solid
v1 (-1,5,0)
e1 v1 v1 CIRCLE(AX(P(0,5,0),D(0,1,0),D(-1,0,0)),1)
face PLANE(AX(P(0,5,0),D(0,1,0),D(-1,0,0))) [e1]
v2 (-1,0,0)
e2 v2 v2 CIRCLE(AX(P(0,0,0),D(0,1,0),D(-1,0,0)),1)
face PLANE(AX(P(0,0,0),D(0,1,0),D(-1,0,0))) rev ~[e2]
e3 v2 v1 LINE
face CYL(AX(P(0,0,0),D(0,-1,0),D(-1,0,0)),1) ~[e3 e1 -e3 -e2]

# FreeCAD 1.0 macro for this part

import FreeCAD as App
import Part
import Sketcher

V = App.Vector

doc = App.newDocument("Part")
body = doc.addObject("PartDesign::Body", "Body")

# Sketch on XZ plane
sketch1 = body.newObject("Sketcher::SketchObject", "Sketch")
sketch1.AttachmentSupport = (doc.getObject("XZ_Plane"), [""])
sketch1.MapMode = "FlatFace"
sketch1.addGeometry(Part.Circle(V(0, 0, 0), V(0, 0, 1), 1), False)
sketch1.addConstraint([
    Sketcher.Constraint("Coincident", 0, 3, -1, 1),
    Sketcher.Constraint("Diameter", 0, 2.0),
])
pad1 = body.newObject("PartDesign::Pad", "Pad")
pad1.Profile = sketch1
pad1.Length = 5
pad1.Reversed = True

doc.recompute()
